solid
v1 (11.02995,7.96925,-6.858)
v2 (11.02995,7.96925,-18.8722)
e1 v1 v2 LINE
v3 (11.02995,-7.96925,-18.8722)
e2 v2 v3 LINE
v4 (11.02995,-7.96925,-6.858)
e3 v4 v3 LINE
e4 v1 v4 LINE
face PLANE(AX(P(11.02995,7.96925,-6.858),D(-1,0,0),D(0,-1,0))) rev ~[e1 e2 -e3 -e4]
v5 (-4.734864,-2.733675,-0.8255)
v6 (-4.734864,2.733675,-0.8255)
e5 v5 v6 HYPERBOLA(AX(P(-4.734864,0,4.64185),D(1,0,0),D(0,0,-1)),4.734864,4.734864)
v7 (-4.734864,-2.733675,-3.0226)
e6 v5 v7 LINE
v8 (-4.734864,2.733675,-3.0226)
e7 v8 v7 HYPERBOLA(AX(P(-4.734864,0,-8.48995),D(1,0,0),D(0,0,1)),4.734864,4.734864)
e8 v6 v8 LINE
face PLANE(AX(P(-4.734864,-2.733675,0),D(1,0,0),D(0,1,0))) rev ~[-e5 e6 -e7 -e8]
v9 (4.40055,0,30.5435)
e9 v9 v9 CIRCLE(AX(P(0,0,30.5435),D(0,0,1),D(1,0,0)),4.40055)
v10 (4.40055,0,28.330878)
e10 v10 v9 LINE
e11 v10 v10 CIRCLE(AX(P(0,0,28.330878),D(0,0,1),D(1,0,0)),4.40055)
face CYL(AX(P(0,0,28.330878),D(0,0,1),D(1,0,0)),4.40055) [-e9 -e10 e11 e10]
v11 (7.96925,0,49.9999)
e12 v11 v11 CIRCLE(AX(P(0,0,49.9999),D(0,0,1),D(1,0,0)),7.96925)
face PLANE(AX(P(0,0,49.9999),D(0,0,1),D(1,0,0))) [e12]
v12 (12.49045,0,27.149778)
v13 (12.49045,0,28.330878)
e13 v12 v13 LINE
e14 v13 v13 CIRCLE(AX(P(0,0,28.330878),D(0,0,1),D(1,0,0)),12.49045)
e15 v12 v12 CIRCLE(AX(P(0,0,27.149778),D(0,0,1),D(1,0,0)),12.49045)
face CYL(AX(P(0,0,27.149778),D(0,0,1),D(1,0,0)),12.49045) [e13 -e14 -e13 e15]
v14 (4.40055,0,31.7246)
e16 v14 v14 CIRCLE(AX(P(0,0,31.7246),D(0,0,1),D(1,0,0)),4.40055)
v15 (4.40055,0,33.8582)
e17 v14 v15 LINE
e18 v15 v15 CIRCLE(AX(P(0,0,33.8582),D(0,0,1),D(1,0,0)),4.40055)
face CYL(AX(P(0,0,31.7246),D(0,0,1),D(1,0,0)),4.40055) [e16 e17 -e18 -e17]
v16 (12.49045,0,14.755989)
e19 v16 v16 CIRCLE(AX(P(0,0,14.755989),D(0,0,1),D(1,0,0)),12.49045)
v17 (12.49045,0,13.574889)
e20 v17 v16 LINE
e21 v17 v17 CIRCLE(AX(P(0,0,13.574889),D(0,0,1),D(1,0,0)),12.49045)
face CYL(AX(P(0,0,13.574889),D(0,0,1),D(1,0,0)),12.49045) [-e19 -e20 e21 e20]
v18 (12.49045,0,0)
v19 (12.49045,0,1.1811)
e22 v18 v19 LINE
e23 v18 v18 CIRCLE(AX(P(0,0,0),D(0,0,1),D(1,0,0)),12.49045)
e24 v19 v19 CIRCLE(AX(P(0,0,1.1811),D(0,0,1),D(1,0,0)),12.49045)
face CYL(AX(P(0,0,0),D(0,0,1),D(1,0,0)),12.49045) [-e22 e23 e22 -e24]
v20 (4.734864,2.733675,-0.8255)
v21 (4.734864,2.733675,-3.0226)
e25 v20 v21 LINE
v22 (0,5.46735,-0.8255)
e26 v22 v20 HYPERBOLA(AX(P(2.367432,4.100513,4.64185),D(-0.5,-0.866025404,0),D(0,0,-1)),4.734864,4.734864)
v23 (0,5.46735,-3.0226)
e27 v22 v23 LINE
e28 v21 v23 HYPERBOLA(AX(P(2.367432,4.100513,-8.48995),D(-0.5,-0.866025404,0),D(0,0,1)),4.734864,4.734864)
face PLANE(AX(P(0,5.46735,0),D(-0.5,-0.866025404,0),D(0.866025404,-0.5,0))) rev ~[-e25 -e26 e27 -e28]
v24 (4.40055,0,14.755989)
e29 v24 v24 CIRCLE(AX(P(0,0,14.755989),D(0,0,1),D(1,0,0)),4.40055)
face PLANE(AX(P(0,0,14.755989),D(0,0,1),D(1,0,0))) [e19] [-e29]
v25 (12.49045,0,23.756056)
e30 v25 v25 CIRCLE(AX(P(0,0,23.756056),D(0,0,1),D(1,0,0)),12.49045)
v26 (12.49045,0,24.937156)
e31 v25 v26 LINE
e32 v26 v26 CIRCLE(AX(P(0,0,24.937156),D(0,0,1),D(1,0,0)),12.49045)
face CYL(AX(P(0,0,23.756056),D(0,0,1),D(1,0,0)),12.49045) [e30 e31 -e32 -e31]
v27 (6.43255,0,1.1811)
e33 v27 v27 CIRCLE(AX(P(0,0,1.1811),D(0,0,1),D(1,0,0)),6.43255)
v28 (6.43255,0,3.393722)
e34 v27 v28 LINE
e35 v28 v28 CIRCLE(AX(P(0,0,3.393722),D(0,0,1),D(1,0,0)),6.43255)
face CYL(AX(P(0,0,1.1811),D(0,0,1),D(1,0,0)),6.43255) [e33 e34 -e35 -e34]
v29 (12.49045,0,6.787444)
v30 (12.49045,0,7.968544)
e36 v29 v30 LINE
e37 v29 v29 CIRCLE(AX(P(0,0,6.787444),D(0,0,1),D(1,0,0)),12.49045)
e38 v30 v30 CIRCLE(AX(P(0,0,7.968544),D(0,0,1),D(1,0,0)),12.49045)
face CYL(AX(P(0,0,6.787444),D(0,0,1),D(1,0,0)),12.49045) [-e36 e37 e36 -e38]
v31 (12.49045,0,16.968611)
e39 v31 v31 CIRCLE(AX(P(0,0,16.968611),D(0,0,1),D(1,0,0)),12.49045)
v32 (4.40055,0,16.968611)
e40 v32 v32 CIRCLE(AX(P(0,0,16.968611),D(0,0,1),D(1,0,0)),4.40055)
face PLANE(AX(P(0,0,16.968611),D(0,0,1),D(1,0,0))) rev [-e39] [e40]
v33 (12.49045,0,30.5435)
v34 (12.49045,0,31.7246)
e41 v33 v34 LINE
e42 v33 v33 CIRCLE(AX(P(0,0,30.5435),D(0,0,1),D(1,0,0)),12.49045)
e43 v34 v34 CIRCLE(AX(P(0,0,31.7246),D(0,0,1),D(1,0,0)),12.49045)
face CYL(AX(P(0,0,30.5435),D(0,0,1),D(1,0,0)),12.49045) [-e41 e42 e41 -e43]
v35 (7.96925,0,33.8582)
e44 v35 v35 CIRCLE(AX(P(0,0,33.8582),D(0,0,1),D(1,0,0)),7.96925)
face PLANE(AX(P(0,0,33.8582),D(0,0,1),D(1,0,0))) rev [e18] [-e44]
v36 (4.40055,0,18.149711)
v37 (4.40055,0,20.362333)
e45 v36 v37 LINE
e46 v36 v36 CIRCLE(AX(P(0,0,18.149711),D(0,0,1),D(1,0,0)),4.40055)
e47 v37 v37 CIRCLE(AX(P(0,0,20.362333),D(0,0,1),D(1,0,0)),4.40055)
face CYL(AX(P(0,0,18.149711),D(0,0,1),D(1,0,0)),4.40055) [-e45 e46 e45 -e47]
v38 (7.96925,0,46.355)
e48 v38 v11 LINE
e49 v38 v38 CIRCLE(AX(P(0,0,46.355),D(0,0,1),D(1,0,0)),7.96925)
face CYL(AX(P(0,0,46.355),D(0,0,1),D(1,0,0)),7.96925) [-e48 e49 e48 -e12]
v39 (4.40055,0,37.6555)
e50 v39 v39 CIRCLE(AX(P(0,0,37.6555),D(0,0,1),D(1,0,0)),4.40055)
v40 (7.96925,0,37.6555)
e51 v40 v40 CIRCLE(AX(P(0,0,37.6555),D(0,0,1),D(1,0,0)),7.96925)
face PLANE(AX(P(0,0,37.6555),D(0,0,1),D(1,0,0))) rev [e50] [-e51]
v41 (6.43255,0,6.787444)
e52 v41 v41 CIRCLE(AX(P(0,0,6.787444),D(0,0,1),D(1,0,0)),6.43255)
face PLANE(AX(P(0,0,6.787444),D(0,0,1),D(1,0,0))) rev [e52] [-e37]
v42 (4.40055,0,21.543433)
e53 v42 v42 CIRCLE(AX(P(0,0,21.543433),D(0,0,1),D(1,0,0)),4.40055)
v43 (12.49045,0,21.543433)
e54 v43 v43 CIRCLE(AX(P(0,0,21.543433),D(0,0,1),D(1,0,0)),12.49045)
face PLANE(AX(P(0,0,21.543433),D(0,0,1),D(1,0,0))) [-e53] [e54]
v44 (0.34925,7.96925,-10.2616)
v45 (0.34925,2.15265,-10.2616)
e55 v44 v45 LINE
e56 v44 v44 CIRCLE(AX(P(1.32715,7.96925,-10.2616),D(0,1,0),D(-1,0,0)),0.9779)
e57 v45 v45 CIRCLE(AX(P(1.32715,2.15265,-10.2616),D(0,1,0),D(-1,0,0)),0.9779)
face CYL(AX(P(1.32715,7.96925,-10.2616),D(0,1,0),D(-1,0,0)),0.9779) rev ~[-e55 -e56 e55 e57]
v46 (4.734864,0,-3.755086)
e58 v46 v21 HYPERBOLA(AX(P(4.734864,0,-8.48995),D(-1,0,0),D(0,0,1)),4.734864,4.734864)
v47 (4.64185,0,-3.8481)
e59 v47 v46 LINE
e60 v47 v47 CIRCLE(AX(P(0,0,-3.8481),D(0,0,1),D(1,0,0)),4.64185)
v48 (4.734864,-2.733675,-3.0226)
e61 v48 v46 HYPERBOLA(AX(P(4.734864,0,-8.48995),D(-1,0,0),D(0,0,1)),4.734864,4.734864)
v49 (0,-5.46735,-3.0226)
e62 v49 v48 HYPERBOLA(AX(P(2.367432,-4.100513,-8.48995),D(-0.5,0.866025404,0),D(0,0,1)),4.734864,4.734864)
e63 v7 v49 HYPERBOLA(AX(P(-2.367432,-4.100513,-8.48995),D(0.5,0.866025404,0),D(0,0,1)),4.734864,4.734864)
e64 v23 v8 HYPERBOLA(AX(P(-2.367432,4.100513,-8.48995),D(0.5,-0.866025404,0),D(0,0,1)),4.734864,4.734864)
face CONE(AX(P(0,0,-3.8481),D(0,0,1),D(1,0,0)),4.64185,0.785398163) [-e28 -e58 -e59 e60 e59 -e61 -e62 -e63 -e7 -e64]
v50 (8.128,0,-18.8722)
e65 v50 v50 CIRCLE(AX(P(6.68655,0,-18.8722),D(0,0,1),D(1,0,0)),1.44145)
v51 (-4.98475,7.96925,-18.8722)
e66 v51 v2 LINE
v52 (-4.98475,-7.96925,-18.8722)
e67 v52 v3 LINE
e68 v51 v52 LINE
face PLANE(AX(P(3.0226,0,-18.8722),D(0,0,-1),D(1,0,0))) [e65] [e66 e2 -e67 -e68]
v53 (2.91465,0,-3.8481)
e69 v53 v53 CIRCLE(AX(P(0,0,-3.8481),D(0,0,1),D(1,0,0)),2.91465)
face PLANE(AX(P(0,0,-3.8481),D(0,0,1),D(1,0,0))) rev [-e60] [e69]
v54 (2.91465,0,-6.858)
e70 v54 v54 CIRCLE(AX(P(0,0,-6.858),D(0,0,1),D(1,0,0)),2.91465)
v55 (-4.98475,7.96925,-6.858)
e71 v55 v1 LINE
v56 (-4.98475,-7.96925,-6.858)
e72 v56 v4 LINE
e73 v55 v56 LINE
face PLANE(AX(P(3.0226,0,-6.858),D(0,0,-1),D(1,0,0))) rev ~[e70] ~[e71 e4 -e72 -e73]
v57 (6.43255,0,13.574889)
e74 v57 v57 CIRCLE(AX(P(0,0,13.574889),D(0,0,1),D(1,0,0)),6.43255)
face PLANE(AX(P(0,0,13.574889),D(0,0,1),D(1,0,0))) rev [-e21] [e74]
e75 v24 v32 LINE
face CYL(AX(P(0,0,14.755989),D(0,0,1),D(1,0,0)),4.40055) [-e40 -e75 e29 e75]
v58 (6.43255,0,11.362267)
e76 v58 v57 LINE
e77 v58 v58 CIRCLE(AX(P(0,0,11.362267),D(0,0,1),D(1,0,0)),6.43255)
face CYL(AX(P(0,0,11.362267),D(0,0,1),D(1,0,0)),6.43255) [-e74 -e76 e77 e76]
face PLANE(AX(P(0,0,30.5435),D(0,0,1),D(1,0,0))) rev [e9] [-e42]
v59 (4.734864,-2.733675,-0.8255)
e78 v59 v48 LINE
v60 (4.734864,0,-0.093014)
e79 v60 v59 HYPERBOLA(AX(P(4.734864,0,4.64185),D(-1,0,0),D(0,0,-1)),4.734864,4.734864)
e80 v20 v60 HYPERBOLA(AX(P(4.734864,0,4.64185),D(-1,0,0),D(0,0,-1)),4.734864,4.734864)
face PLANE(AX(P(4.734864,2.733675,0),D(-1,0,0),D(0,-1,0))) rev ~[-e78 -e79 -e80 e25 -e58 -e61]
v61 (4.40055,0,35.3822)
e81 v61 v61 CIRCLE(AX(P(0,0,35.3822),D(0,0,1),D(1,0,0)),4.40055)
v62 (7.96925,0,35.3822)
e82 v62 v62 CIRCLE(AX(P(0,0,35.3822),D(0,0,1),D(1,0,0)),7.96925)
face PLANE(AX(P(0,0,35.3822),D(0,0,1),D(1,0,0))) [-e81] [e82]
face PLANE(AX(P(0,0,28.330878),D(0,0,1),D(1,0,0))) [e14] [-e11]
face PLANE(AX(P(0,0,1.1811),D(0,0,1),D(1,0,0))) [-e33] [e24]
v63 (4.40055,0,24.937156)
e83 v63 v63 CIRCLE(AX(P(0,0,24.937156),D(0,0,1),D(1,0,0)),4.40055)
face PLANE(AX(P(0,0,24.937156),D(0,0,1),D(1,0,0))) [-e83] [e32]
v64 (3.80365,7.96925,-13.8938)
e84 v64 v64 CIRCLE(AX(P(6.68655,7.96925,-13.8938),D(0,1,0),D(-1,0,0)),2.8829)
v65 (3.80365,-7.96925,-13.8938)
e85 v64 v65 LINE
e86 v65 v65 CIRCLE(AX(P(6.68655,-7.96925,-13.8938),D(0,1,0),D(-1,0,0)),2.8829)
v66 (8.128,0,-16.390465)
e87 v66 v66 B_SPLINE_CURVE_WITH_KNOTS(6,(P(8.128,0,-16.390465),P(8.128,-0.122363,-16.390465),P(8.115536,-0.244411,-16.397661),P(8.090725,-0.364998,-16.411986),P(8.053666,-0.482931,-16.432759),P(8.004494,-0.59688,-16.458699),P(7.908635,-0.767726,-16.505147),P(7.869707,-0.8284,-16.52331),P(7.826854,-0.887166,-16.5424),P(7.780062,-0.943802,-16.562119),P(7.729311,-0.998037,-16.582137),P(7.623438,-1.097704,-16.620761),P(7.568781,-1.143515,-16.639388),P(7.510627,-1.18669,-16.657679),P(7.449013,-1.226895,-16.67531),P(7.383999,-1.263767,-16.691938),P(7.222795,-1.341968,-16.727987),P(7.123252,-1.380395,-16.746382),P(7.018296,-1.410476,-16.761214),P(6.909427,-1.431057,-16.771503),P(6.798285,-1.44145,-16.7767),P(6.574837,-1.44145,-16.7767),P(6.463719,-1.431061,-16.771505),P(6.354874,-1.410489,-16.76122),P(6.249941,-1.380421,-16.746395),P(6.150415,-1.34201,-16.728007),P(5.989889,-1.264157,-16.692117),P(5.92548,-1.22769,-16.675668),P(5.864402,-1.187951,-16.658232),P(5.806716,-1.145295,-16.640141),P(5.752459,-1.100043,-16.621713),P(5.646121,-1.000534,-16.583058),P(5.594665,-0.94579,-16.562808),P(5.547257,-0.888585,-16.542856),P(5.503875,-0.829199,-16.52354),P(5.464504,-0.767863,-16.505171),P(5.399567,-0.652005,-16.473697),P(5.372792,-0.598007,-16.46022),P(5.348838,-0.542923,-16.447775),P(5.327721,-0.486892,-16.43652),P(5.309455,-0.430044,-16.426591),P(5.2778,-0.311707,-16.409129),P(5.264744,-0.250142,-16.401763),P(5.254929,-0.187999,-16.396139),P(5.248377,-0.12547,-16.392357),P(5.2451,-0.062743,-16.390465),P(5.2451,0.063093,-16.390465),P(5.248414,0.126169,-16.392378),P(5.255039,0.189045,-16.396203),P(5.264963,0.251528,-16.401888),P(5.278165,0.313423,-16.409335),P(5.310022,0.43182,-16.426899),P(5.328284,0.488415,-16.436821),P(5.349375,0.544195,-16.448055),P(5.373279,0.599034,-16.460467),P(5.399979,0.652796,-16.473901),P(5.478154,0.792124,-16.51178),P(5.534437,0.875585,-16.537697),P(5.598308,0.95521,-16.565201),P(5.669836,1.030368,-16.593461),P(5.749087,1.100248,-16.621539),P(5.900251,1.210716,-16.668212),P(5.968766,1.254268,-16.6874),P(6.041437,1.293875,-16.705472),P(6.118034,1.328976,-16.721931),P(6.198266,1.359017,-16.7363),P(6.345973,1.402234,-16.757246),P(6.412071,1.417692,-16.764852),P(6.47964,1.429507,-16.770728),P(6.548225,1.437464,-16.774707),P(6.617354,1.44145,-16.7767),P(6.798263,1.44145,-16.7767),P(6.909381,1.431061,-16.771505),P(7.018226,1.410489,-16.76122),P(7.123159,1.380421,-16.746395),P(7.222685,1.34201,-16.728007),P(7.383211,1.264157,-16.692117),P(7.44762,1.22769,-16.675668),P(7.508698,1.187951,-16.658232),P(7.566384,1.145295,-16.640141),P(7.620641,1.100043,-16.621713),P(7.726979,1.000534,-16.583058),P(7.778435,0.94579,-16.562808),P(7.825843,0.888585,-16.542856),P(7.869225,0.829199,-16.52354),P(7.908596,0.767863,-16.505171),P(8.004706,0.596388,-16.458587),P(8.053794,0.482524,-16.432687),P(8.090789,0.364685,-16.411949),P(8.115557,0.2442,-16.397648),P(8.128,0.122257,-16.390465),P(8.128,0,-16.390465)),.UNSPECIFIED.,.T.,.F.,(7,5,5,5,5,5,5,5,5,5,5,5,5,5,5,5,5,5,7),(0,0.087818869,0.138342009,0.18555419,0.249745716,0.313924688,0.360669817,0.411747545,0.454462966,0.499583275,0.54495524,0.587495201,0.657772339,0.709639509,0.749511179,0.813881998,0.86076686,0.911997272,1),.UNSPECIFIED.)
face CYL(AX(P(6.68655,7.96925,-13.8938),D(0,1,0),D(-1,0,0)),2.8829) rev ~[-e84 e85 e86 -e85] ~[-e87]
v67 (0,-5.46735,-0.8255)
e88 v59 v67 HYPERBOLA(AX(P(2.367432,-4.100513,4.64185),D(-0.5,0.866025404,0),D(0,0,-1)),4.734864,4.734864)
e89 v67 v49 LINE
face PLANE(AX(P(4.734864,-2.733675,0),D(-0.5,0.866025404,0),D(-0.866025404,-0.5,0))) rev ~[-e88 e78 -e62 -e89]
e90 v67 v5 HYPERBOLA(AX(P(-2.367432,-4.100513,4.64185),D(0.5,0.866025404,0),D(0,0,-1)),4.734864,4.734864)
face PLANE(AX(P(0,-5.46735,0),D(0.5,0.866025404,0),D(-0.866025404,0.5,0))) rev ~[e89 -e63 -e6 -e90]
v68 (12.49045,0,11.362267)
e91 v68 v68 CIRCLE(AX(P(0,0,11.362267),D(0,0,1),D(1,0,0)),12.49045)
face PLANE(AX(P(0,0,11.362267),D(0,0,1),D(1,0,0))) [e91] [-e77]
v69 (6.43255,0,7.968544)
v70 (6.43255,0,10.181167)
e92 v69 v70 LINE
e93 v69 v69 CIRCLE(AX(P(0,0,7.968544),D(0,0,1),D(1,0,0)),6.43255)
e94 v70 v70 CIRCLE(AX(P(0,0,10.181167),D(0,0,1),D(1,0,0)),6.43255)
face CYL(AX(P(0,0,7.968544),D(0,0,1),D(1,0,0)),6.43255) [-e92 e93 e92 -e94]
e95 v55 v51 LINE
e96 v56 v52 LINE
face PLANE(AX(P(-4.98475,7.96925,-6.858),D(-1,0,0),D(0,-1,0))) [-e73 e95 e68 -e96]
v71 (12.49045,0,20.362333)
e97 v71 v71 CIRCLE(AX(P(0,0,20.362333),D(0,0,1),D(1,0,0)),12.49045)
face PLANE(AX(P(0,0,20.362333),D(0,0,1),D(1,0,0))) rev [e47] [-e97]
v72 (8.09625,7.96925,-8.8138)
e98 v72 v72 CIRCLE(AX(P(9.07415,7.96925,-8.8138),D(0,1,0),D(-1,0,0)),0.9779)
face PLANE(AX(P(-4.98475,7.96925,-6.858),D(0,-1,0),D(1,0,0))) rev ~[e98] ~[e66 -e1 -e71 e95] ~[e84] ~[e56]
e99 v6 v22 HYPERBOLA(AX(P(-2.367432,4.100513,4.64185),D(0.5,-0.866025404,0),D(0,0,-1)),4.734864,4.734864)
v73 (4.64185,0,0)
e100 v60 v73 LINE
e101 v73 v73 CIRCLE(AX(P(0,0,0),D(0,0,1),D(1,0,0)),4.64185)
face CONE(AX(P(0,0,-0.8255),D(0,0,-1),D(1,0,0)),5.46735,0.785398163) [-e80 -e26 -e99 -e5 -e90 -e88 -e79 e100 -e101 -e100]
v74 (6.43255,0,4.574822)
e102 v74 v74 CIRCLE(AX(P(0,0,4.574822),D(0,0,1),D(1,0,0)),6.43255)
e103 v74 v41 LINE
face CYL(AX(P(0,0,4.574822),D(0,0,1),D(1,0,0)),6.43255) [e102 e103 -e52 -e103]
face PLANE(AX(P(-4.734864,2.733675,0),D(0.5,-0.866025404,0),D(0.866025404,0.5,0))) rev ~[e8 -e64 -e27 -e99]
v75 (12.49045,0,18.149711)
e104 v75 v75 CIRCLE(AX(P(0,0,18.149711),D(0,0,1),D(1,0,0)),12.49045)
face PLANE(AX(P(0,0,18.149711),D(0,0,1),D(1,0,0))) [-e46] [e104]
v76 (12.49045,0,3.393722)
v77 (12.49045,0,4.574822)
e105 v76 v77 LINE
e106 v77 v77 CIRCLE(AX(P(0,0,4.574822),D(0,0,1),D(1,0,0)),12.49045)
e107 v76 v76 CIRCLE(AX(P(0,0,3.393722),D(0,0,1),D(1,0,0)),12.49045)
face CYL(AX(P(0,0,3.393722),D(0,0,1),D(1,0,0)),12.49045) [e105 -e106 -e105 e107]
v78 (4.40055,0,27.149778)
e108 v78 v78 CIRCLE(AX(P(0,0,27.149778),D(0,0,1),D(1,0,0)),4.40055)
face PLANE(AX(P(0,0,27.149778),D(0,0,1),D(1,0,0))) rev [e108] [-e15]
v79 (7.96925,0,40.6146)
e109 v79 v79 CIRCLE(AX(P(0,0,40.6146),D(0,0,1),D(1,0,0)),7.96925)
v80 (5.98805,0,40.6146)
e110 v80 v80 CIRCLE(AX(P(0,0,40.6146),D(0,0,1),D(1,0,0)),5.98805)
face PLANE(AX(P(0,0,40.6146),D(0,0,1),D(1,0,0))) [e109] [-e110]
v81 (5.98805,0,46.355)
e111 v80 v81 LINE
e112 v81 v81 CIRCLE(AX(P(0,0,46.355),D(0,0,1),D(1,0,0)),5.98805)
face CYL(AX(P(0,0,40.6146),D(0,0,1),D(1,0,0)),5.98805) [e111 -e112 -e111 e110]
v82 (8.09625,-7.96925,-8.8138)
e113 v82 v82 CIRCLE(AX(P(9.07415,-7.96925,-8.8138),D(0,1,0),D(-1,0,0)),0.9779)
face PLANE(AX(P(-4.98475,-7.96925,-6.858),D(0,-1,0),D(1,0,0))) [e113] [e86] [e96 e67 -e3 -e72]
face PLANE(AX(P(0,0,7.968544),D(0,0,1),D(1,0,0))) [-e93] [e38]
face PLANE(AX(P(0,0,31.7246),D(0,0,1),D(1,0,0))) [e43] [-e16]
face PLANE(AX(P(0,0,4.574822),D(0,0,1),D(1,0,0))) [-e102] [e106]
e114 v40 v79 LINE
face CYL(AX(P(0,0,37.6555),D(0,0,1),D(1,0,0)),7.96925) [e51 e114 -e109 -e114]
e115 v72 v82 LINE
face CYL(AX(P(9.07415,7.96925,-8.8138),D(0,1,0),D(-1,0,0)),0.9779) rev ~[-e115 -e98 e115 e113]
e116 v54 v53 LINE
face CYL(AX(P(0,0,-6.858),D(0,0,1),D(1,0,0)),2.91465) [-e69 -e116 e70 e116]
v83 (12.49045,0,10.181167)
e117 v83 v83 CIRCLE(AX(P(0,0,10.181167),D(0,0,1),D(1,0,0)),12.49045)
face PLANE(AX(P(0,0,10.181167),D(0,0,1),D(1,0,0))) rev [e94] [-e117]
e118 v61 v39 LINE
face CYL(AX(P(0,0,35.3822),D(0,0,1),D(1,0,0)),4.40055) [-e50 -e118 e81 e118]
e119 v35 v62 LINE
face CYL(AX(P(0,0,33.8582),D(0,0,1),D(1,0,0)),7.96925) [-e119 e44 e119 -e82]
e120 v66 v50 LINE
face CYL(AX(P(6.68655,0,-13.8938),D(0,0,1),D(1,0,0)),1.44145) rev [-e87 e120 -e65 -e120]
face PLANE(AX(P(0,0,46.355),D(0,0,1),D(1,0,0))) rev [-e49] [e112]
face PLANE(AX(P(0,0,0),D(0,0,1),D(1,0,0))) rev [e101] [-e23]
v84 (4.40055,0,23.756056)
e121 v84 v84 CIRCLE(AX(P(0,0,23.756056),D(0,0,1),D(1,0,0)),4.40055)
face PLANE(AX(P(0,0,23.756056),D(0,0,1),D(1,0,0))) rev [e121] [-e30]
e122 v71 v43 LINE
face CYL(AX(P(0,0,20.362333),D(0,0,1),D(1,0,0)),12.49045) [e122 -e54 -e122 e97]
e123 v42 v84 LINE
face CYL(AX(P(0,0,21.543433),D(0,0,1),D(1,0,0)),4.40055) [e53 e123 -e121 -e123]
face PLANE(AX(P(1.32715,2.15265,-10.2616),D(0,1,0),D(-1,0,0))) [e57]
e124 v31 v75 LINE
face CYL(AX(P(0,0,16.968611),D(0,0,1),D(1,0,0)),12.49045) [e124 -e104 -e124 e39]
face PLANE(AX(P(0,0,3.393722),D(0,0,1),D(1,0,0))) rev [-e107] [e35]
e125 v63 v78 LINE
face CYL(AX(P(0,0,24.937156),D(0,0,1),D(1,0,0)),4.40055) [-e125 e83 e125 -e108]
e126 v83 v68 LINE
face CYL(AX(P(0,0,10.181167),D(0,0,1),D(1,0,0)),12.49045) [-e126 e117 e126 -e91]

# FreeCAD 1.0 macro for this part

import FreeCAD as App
import Part
import Sketcher
Q = App.Units.Quantity

doc = App.newDocument("Part")
params = doc.addObject("Spreadsheet::Sheet", "Params")
for row, (alias, value) in enumerate([
    ("sketch1_height", "0.06 in"),
    ("sketch1_width", "0.068 in"),
    ("sketch1_width2", "0.309 in"),
    ("sketch1_width3", "0.078 in"),
    ("sketch1_height2", "0.084 in"),
    ("revolution_angle", "360 deg"),
    ("pocket1_length", "1 in"),
    ("pad1_length", "0.473 in"),
    ("sketch4_diameter", "0.227 in"),
    ("sketch4_diameter2", "0.077 in"),
    ("pocket2_length", "1 in"),
    ("sketch5_diameter", "0.077 in"),
    ("pocket3_length", "0.229 in"),
    ("pocket4_length", "1 in"),
], start=1):
    params.set(f"A{row}", alias)
    params.set(f"B{row}", "=" + value)
    params.setAlias(f"B{row}", alias)

body = doc.addObject("PartDesign::Body", "Body")

# Sketch on XZ plane
sketch1 = body.newObject("Sketcher::SketchObject", "Sketch")
sketch1.AttachmentSupport = (doc.getObject("XZ_Plane"), [""])
sketch1.MapMode = "FlatFace"
sketch1.addGeometry(Part.LineSegment(App.Vector(0, 50, 0), App.Vector(0, -6.9, 0)), False)
sketch1.addGeometry(Part.LineSegment(App.Vector(0, -6.9, 0), App.Vector(2.9, -6.9, 0)), False)
sketch1.addGeometry(Part.LineSegment(App.Vector(2.9, -6.9, 0), App.Vector(2.9, -3.8, 0)), False)
sketch1.addGeometry(Part.LineSegment(App.Vector(2.9, -3.8, 0), App.Vector(4.6, -3.8, 0)), False)
sketch1.addGeometry(Part.LineSegment(App.Vector(4.6, -3.8, 0), App.Vector(5.5, -3, 0)), False)
sketch1.addGeometry(Part.LineSegment(App.Vector(5.5, -3, 0), App.Vector(5.5, -0.8, 0)), False)
sketch1.addGeometry(Part.LineSegment(App.Vector(5.5, -0.8, 0), App.Vector(4.6, 0, 0)), False)
sketch1.addGeometry(Part.LineSegment(App.Vector(4.6, 0, 0), App.Vector(12.5, 0, 0)), False)
sketch1.addGeometry(Part.LineSegment(App.Vector(12.5, 0, 0), App.Vector(12.5, 1.2, 0)), False)
sketch1.addGeometry(Part.LineSegment(App.Vector(12.5, 1.2, 0), App.Vector(6.4, 1.2, 0)), False)
sketch1.addGeometry(Part.LineSegment(App.Vector(6.4, 1.2, 0), App.Vector(6.4, 3.4, 0)), False)
sketch1.addGeometry(Part.LineSegment(App.Vector(6.4, 3.4, 0), App.Vector(12.5, 3.4, 0)), False)
sketch1.addGeometry(Part.LineSegment(App.Vector(12.5, 3.4, 0), App.Vector(12.5, 4.6, 0)), False)
sketch1.addGeometry(Part.LineSegment(App.Vector(12.5, 4.6, 0), App.Vector(6.4, 4.6, 0)), False)
sketch1.addGeometry(Part.LineSegment(App.Vector(6.4, 4.6, 0), App.Vector(6.4, 6.8, 0)), False)
sketch1.addGeometry(Part.LineSegment(App.Vector(6.4, 6.8, 0), App.Vector(12.5, 6.8, 0)), False)
sketch1.addGeometry(Part.LineSegment(App.Vector(12.5, 6.8, 0), App.Vector(12.5, 8, 0)), False)
sketch1.addGeometry(Part.LineSegment(App.Vector(12.5, 8, 0), App.Vector(6.4, 8, 0)), False)
sketch1.addGeometry(Part.LineSegment(App.Vector(6.4, 8, 0), App.Vector(6.4, 10.2, 0)), False)
sketch1.addGeometry(Part.LineSegment(App.Vector(6.4, 10.2, 0), App.Vector(12.5, 10.2, 0)), False)
sketch1.addGeometry(Part.LineSegment(App.Vector(12.5, 10.2, 0), App.Vector(12.5, 11.4, 0)), False)
sketch1.addGeometry(Part.LineSegment(App.Vector(12.5, 11.4, 0), App.Vector(6.4, 11.4, 0)), False)
sketch1.addGeometry(Part.LineSegment(App.Vector(6.4, 11.4, 0), App.Vector(6.4, 13.6, 0)), False)
sketch1.addGeometry(Part.LineSegment(App.Vector(6.4, 13.6, 0), App.Vector(12.5, 13.6, 0)), False)
sketch1.addGeometry(Part.LineSegment(App.Vector(12.5, 13.6, 0), App.Vector(12.5, 14.8, 0)), False)
sketch1.addGeometry(Part.LineSegment(App.Vector(12.5, 14.8, 0), App.Vector(4.4, 14.8, 0)), False)
sketch1.addGeometry(Part.LineSegment(App.Vector(4.4, 14.8, 0), App.Vector(4.4, 17, 0)), False)
sketch1.addGeometry(Part.LineSegment(App.Vector(4.4, 17, 0), App.Vector(12.5, 17, 0)), False)
sketch1.addGeometry(Part.LineSegment(App.Vector(12.5, 17, 0), App.Vector(12.5, 18.1, 0)), False)
sketch1.addGeometry(Part.LineSegment(App.Vector(12.5, 18.1, 0), App.Vector(4.4, 18.1, 0)), False)
sketch1.addGeometry(Part.LineSegment(App.Vector(4.4, 18.1, 0), App.Vector(4.4, 20.4, 0)), False)
sketch1.addGeometry(Part.LineSegment(App.Vector(4.4, 20.4, 0), App.Vector(12.5, 20.4, 0)), False)
sketch1.addGeometry(Part.LineSegment(App.Vector(12.5, 20.4, 0), App.Vector(12.5, 21.5, 0)), False)
sketch1.addGeometry(Part.LineSegment(App.Vector(12.5, 21.5, 0), App.Vector(4.4, 21.5, 0)), False)
sketch1.addGeometry(Part.LineSegment(App.Vector(4.4, 21.5, 0), App.Vector(4.4, 23.8, 0)), False)
sketch1.addGeometry(Part.LineSegment(App.Vector(4.4, 23.8, 0), App.Vector(12.5, 23.8, 0)), False)
sketch1.addGeometry(Part.LineSegment(App.Vector(12.5, 23.8, 0), App.Vector(12.5, 24.9, 0)), False)
sketch1.addGeometry(Part.LineSegment(App.Vector(12.5, 24.9, 0), App.Vector(4.4, 24.9, 0)), False)
sketch1.addGeometry(Part.LineSegment(App.Vector(4.4, 24.9, 0), App.Vector(4.4, 27.1, 0)), False)
sketch1.addGeometry(Part.LineSegment(App.Vector(4.4, 27.1, 0), App.Vector(12.5, 27.1, 0)), False)
sketch1.addGeometry(Part.LineSegment(App.Vector(12.5, 27.1, 0), App.Vector(12.5, 28.3, 0)), False)
sketch1.addGeometry(Part.LineSegment(App.Vector(12.5, 28.3, 0), App.Vector(4.4, 28.3, 0)), False)
sketch1.addGeometry(Part.LineSegment(App.Vector(4.4, 28.3, 0), App.Vector(4.4, 30.5, 0)), False)
sketch1.addGeometry(Part.LineSegment(App.Vector(4.4, 30.5, 0), App.Vector(12.5, 30.5, 0)), False)
sketch1.addGeometry(Part.LineSegment(App.Vector(12.5, 30.5, 0), App.Vector(12.5, 31.7, 0)), False)
sketch1.addGeometry(Part.LineSegment(App.Vector(12.5, 31.7, 0), App.Vector(4.4, 31.7, 0)), False)
sketch1.addGeometry(Part.LineSegment(App.Vector(4.4, 31.7, 0), App.Vector(4.4, 33.9, 0)), False)
sketch1.addGeometry(Part.LineSegment(App.Vector(4.4, 33.9, 0), App.Vector(8, 33.9, 0)), False)
sketch1.addGeometry(Part.LineSegment(App.Vector(8, 33.9, 0), App.Vector(8, 35.4, 0)), False)
sketch1.addGeometry(Part.LineSegment(App.Vector(8, 35.4, 0), App.Vector(4.4, 35.4, 0)), False)
sketch1.addGeometry(Part.LineSegment(App.Vector(4.4, 35.4, 0), App.Vector(4.4, 37.7, 0)), False)
sketch1.addGeometry(Part.LineSegment(App.Vector(4.4, 37.7, 0), App.Vector(8, 37.7, 0)), False)
sketch1.addGeometry(Part.LineSegment(App.Vector(8, 37.7, 0), App.Vector(8, 40.6, 0)), False)
sketch1.addGeometry(Part.LineSegment(App.Vector(8, 40.6, 0), App.Vector(6, 40.6, 0)), False)
sketch1.addGeometry(Part.LineSegment(App.Vector(6, 40.6, 0), App.Vector(6, 46.4, 0)), False)
sketch1.addGeometry(Part.LineSegment(App.Vector(6, 46.4, 0), App.Vector(8, 46.4, 0)), False)
sketch1.addGeometry(Part.LineSegment(App.Vector(8, 46.4, 0), App.Vector(8, 50, 0)), False)
sketch1.addGeometry(Part.LineSegment(App.Vector(8, 50, 0), App.Vector(0, 50, 0)), False)
sketch1.addConstraint(Sketcher.Constraint("Coincident", 0, 2, 1, 1))
sketch1.addConstraint(Sketcher.Constraint("Coincident", 1, 2, 2, 1))
sketch1.addConstraint(Sketcher.Constraint("Coincident", 2, 2, 3, 1))
sketch1.addConstraint(Sketcher.Constraint("Coincident", 3, 2, 4, 1))
sketch1.addConstraint(Sketcher.Constraint("Coincident", 4, 2, 5, 1))
sketch1.addConstraint(Sketcher.Constraint("Coincident", 5, 2, 6, 1))
sketch1.addConstraint(Sketcher.Constraint("Coincident", 6, 2, 7, 1))
sketch1.addConstraint(Sketcher.Constraint("Coincident", 7, 2, 8, 1))
sketch1.addConstraint(Sketcher.Constraint("Coincident", 8, 2, 9, 1))
sketch1.addConstraint(Sketcher.Constraint("Coincident", 9, 2, 10, 1))
sketch1.addConstraint(Sketcher.Constraint("Coincident", 10, 2, 11, 1))
sketch1.addConstraint(Sketcher.Constraint("Coincident", 11, 2, 12, 1))
sketch1.addConstraint(Sketcher.Constraint("Coincident", 12, 2, 13, 1))
sketch1.addConstraint(Sketcher.Constraint("Coincident", 13, 2, 14, 1))
sketch1.addConstraint(Sketcher.Constraint("Coincident", 14, 2, 15, 1))
sketch1.addConstraint(Sketcher.Constraint("Coincident", 15, 2, 16, 1))
sketch1.addConstraint(Sketcher.Constraint("Coincident", 16, 2, 17, 1))
sketch1.addConstraint(Sketcher.Constraint("Coincident", 17, 2, 18, 1))
sketch1.addConstraint(Sketcher.Constraint("Coincident", 18, 2, 19, 1))
sketch1.addConstraint(Sketcher.Constraint("Coincident", 19, 2, 20, 1))
sketch1.addConstraint(Sketcher.Constraint("Coincident", 20, 2, 21, 1))
sketch1.addConstraint(Sketcher.Constraint("Coincident", 21, 2, 22, 1))
sketch1.addConstraint(Sketcher.Constraint("Coincident", 22, 2, 23, 1))
sketch1.addConstraint(Sketcher.Constraint("Coincident", 23, 2, 24, 1))
sketch1.addConstraint(Sketcher.Constraint("Coincident", 24, 2, 25, 1))
sketch1.addConstraint(Sketcher.Constraint("Coincident", 25, 2, 26, 1))
sketch1.addConstraint(Sketcher.Constraint("Coincident", 26, 2, 27, 1))
sketch1.addConstraint(Sketcher.Constraint("Coincident", 27, 2, 28, 1))
sketch1.addConstraint(Sketcher.Constraint("Coincident", 28, 2, 29, 1))
sketch1.addConstraint(Sketcher.Constraint("Coincident", 29, 2, 30, 1))
sketch1.addConstraint(Sketcher.Constraint("Coincident", 30, 2, 31, 1))
sketch1.addConstraint(Sketcher.Constraint("Coincident", 31, 2, 32, 1))
sketch1.addConstraint(Sketcher.Constraint("Coincident", 32, 2, 33, 1))
sketch1.addConstraint(Sketcher.Constraint("Coincident", 33, 2, 34, 1))
sketch1.addConstraint(Sketcher.Constraint("Coincident", 34, 2, 35, 1))
sketch1.addConstraint(Sketcher.Constraint("Coincident", 35, 2, 36, 1))
sketch1.addConstraint(Sketcher.Constraint("Coincident", 36, 2, 37, 1))
sketch1.addConstraint(Sketcher.Constraint("Coincident", 37, 2, 38, 1))
sketch1.addConstraint(Sketcher.Constraint("Coincident", 38, 2, 39, 1))
sketch1.addConstraint(Sketcher.Constraint("Coincident", 39, 2, 40, 1))
sketch1.addConstraint(Sketcher.Constraint("Coincident", 40, 2, 41, 1))
sketch1.addConstraint(Sketcher.Constraint("Coincident", 41, 2, 42, 1))
sketch1.addConstraint(Sketcher.Constraint("Coincident", 42, 2, 43, 1))
sketch1.addConstraint(Sketcher.Constraint("Coincident", 43, 2, 44, 1))
sketch1.addConstraint(Sketcher.Constraint("Coincident", 44, 2, 45, 1))
sketch1.addConstraint(Sketcher.Constraint("Coincident", 45, 2, 46, 1))
sketch1.addConstraint(Sketcher.Constraint("Coincident", 46, 2, 47, 1))
sketch1.addConstraint(Sketcher.Constraint("Coincident", 47, 2, 48, 1))
sketch1.addConstraint(Sketcher.Constraint("Coincident", 48, 2, 49, 1))
sketch1.addConstraint(Sketcher.Constraint("Coincident", 49, 2, 50, 1))
sketch1.addConstraint(Sketcher.Constraint("Coincident", 50, 2, 51, 1))
sketch1.addConstraint(Sketcher.Constraint("Coincident", 51, 2, 52, 1))
sketch1.addConstraint(Sketcher.Constraint("Coincident", 52, 2, 53, 1))
sketch1.addConstraint(Sketcher.Constraint("Coincident", 53, 2, 54, 1))
sketch1.addConstraint(Sketcher.Constraint("Coincident", 54, 2, 55, 1))
sketch1.addConstraint(Sketcher.Constraint("Coincident", 55, 2, 56, 1))
sketch1.addConstraint(Sketcher.Constraint("Coincident", 56, 2, 57, 1))
sketch1.addConstraint(Sketcher.Constraint("Coincident", 57, 2, 0, 1))
sketch1.addConstraint(Sketcher.Constraint("Vertical", 0))
sketch1.addConstraint(Sketcher.Constraint("Horizontal", 1))
sketch1.addConstraint(Sketcher.Constraint("Vertical", 2))
sketch1.addConstraint(Sketcher.Constraint("Horizontal", 3))
sketch1.addConstraint(Sketcher.Constraint("Vertical", 5))
sketch1.addConstraint(Sketcher.Constraint("Horizontal", 7))
sketch1.addConstraint(Sketcher.Constraint("Vertical", 8))
sketch1.addConstraint(Sketcher.Constraint("Horizontal", 9))
sketch1.addConstraint(Sketcher.Constraint("Vertical", 10))
sketch1.addConstraint(Sketcher.Constraint("Horizontal", 11))
sketch1.addConstraint(Sketcher.Constraint("Vertical", 12))
sketch1.addConstraint(Sketcher.Constraint("Horizontal", 13))
sketch1.addConstraint(Sketcher.Constraint("Vertical", 14))
sketch1.addConstraint(Sketcher.Constraint("Horizontal", 15))
sketch1.addConstraint(Sketcher.Constraint("Vertical", 16))
sketch1.addConstraint(Sketcher.Constraint("Horizontal", 17))
sketch1.addConstraint(Sketcher.Constraint("Vertical", 18))
sketch1.addConstraint(Sketcher.Constraint("Horizontal", 19))
sketch1.addConstraint(Sketcher.Constraint("Vertical", 20))
sketch1.addConstraint(Sketcher.Constraint("Horizontal", 21))
sketch1.addConstraint(Sketcher.Constraint("Vertical", 22))
sketch1.addConstraint(Sketcher.Constraint("Horizontal", 23))
sketch1.addConstraint(Sketcher.Constraint("Vertical", 24))
sketch1.addConstraint(Sketcher.Constraint("Horizontal", 25))
sketch1.addConstraint(Sketcher.Constraint("Vertical", 26))
sketch1.addConstraint(Sketcher.Constraint("Horizontal", 27))
sketch1.addConstraint(Sketcher.Constraint("Vertical", 28))
sketch1.addConstraint(Sketcher.Constraint("Horizontal", 29))
sketch1.addConstraint(Sketcher.Constraint("Vertical", 30))
sketch1.addConstraint(Sketcher.Constraint("Horizontal", 31))
sketch1.addConstraint(Sketcher.Constraint("Vertical", 32))
sketch1.addConstraint(Sketcher.Constraint("Horizontal", 33))
sketch1.addConstraint(Sketcher.Constraint("Vertical", 34))
sketch1.addConstraint(Sketcher.Constraint("Horizontal", 35))
sketch1.addConstraint(Sketcher.Constraint("Vertical", 36))
sketch1.addConstraint(Sketcher.Constraint("Horizontal", 37))
sketch1.addConstraint(Sketcher.Constraint("Vertical", 38))
sketch1.addConstraint(Sketcher.Constraint("Horizontal", 39))
sketch1.addConstraint(Sketcher.Constraint("Vertical", 40))
sketch1.addConstraint(Sketcher.Constraint("Horizontal", 41))
sketch1.addConstraint(Sketcher.Constraint("Vertical", 42))
sketch1.addConstraint(Sketcher.Constraint("Horizontal", 43))
sketch1.addConstraint(Sketcher.Constraint("Vertical", 44))
sketch1.addConstraint(Sketcher.Constraint("Horizontal", 45))
sketch1.addConstraint(Sketcher.Constraint("Vertical", 46))
sketch1.addConstraint(Sketcher.Constraint("Horizontal", 47))
sketch1.addConstraint(Sketcher.Constraint("Vertical", 48))
sketch1.addConstraint(Sketcher.Constraint("Horizontal", 49))
sketch1.addConstraint(Sketcher.Constraint("Vertical", 50))
sketch1.addConstraint(Sketcher.Constraint("Horizontal", 51))
sketch1.addConstraint(Sketcher.Constraint("Vertical", 52))
sketch1.addConstraint(Sketcher.Constraint("Horizontal", 53))
sketch1.addConstraint(Sketcher.Constraint("Vertical", 54))
sketch1.addConstraint(Sketcher.Constraint("Horizontal", 55))
sketch1.addConstraint(Sketcher.Constraint("Vertical", 56))
sketch1.addConstraint(Sketcher.Constraint("Horizontal", 57))
sketch1.addConstraint(Sketcher.Constraint("PointOnObject", 0, 2, -2))
sketch1.addConstraint(Sketcher.Constraint("PointOnObject", 6, 2, -1))
sketch1.addConstraint(Sketcher.Constraint("Perpendicular", 4, 6))
sketch1.addConstraint(Sketcher.Constraint("Vertical", 3, 2, 6, 2))
sketch1.addConstraint(Sketcher.Constraint("Vertical", 8, 2, 11, 2))
sketch1.addConstraint(Sketcher.Constraint("Vertical", 10, 2, 13, 2))
sketch1.addConstraint(Sketcher.Constraint("Vertical", 12, 2, 15, 2))
sketch1.addConstraint(Sketcher.Constraint("Vertical", 14, 2, 17, 2))
sketch1.addConstraint(Sketcher.Constraint("Vertical", 16, 2, 19, 2))
sketch1.addConstraint(Sketcher.Constraint("Vertical", 18, 2, 21, 2))
sketch1.addConstraint(Sketcher.Constraint("Vertical", 20, 2, 23, 2))
sketch1.addConstraint(Sketcher.Constraint("Vertical", 24, 2, 27, 2))
sketch1.addConstraint(Sketcher.Constraint("Vertical", 26, 2, 29, 2))
sketch1.addConstraint(Sketcher.Constraint("Vertical", 28, 2, 31, 2))
sketch1.addConstraint(Sketcher.Constraint("Vertical", 30, 2, 33, 2))
sketch1.addConstraint(Sketcher.Constraint("Vertical", 32, 2, 35, 2))
sketch1.addConstraint(Sketcher.Constraint("Vertical", 34, 2, 37, 2))
sketch1.addConstraint(Sketcher.Constraint("Vertical", 36, 2, 39, 2))
sketch1.addConstraint(Sketcher.Constraint("Vertical", 38, 2, 41, 2))
sketch1.addConstraint(Sketcher.Constraint("Vertical", 40, 2, 43, 2))
sketch1.addConstraint(Sketcher.Constraint("Vertical", 42, 2, 45, 2))
sketch1.addConstraint(Sketcher.Constraint("Vertical", 46, 2, 49, 2))
sketch1.addConstraint(Sketcher.Constraint("Vertical", 48, 2, 51, 2))
sketch1.addConstraint(Sketcher.Constraint("Vertical", 52, 2, 55, 2))
sketch1.addConstraint(Sketcher.Constraint("Equal", 8, 12))
sketch1.addConstraint(Sketcher.Constraint("Equal", 10, 14))
sketch1.addConstraint(Sketcher.Constraint("Equal", 12, 16))
sketch1.addConstraint(Sketcher.Constraint("Equal", 14, 18))
sketch1.addConstraint(Sketcher.Constraint("Equal", 16, 20))
sketch1.addConstraint(Sketcher.Constraint("Equal", 18, 22))
sketch1.addConstraint(Sketcher.Constraint("Equal", 20, 24))
sketch1.addConstraint(Sketcher.Constraint("Equal", 22, 26))
sketch1.addConstraint(Sketcher.Constraint("Equal", 24, 28))
sketch1.addConstraint(Sketcher.Constraint("Equal", 26, 30))
sketch1.addConstraint(Sketcher.Constraint("Equal", 28, 32))
sketch1.addConstraint(Sketcher.Constraint("Equal", 30, 34))
sketch1.addConstraint(Sketcher.Constraint("Equal", 32, 36))
sketch1.addConstraint(Sketcher.Constraint("Equal", 34, 38))
sketch1.addConstraint(Sketcher.Constraint("Equal", 36, 40))
sketch1.addConstraint(Sketcher.Constraint("Equal", 38, 42))
sketch1.addConstraint(Sketcher.Constraint("Equal", 40, 44))
sketch1.addConstraint(Sketcher.Constraint("Equal", 4, 6))
sketch1.addConstraint(Sketcher.Constraint("DistanceY", 48, 1, 48, 2, Q("0.06 in")))
sketch1.addConstraint(Sketcher.Constraint("DistanceX", 3, 1, 3, 2, Q("0.068 in")))
sketch1.addConstraint(Sketcher.Constraint("DistanceX", 7, 1, 7, 2, Q("0.309 in")))
sketch1.addConstraint(Sketcher.Constraint("DistanceX", 53, 2, 53, 1, Q("0.078 in")))
sketch1.addConstraint(Sketcher.Constraint("DistanceY", 46, 1, 46, 2, Q("0.084 in")))
sketch1.addConstraint(Sketcher.Constraint("DistanceY", 54, 1, 54, 2, Q("0.226 in")))
sketch1.addConstraint(Sketcher.Constraint("DistanceY", 0, 2, -1, 1, Q("0.27 in")))
sketch1.addConstraint(Sketcher.Constraint("DistanceX", 25, 2, 22, 2, Q("0.08 in")))
sketch1.addConstraint(Sketcher.Constraint("DistanceX", 9, 2, 9, 1, Q("0.2385 in")))
sketch1.addConstraint(Sketcher.Constraint("DistanceX", 47, 1, 47, 2, Q("0.1405 in")))
sketch1.addConstraint(Sketcher.Constraint("DistanceY", 0, 2, 0, 1, Q("2.2385 in")))
sketch1.addConstraint(Sketcher.Constraint("DistanceY", 2, 1, 2, 2, Q("0.1185 in")))
sketch1.addConstraint(Sketcher.Constraint("DistanceY", 5, 1, 5, 2, Q("0.0865 in")))
sketch1.addConstraint(Sketcher.Constraint("DistanceY", 8, 1, 8, 2, Q("0.0465 in")))
sketch1.addConstraint(Sketcher.Constraint("DistanceY", 50, 1, 50, 2, Q("0.0895 in")))
sketch1.addConstraint(Sketcher.Constraint("DistanceY", 52, 1, 52, 2, Q("0.1165 in")))
sketch1.addConstraint(Sketcher.Constraint("DistanceY", 56, 1, 56, 2, Q("0.1435 in")))
sketch1.addConstraint(Sketcher.Constraint("DistanceX", 1, 1, 1, 2, 2.91465))
sketch1.setExpression("Constraints[156]", "Params.sketch1_height")
sketch1.setExpression("Constraints[157]", "Params.sketch1_width")
sketch1.setExpression("Constraints[158]", "Params.sketch1_width2")
sketch1.setExpression("Constraints[159]", "Params.sketch1_width3")
sketch1.setExpression("Constraints[160]", "Params.sketch1_height2")
revolution = body.newObject("PartDesign::Revolution", "Revolution")
revolution.Profile = sketch1
revolution.ReferenceAxis = (sketch1, ["V_Axis"])
revolution.setExpression("Angle", "Params.revolution_angle")

# Sketch on XY plane
sketch2 = body.newObject("Sketcher::SketchObject", "Sketch001")
sketch2.AttachmentSupport = (doc.getObject("XY_Plane"), [""])
sketch2.MapMode = "FlatFace"
sketch2.addGeometry(Part.Circle(App.Vector(0, 0, 0), App.Vector(0, 0, 1), 12), False)
sketch2.addGeometry(Part.LineSegment(App.Vector(5, 3, 0), App.Vector(5, -3, 0)), False)
sketch2.addGeometry(Part.LineSegment(App.Vector(5, -3, 0), App.Vector(0, -5, 0)), False)
sketch2.addGeometry(Part.LineSegment(App.Vector(0, -5, 0), App.Vector(-5, -3, 0)), False)
sketch2.addGeometry(Part.LineSegment(App.Vector(-5, -3, 0), App.Vector(-5, 3, 0)), False)
sketch2.addGeometry(Part.LineSegment(App.Vector(-5, 3, 0), App.Vector(0, 5, 0)), False)
sketch2.addGeometry(Part.LineSegment(App.Vector(0, 5, 0), App.Vector(5, 3, 0)), False)
sketch2.addConstraint(Sketcher.Constraint("Coincident", 1, 2, 2, 1))
sketch2.addConstraint(Sketcher.Constraint("Coincident", 2, 2, 3, 1))
sketch2.addConstraint(Sketcher.Constraint("Coincident", 3, 2, 4, 1))
sketch2.addConstraint(Sketcher.Constraint("Coincident", 4, 2, 5, 1))
sketch2.addConstraint(Sketcher.Constraint("Coincident", 5, 2, 6, 1))
sketch2.addConstraint(Sketcher.Constraint("Coincident", 6, 2, 1, 1))
sketch2.addConstraint(Sketcher.Constraint("Vertical", 1))
sketch2.addConstraint(Sketcher.Constraint("Vertical", 4))
sketch2.addConstraint(Sketcher.Constraint("Coincident", 0, 3, -1, 1))
sketch2.addConstraint(Sketcher.Constraint("Symmetric", 1, 2, 4, 2, -1, 1))
sketch2.addConstraint(Sketcher.Constraint("Symmetric", 2, 2, 5, 2, -1, 1))
sketch2.addConstraint(Sketcher.Constraint("PointOnObject", 2, 2, -2))
sketch2.addConstraint(Sketcher.Constraint("Parallel", 3, 6))
sketch2.addConstraint(Sketcher.Constraint("Horizontal", 1, 2, 3, 2))
sketch2.addConstraint(Sketcher.Constraint("Angle", 2, Q("-150 deg")))
sketch2.addConstraint(Sketcher.Constraint("Diameter", 0, Q("0.9835 in")))
sketch2.addConstraint(Sketcher.Constraint("DistanceY", 2, 2, 5, 2, Q("0.4305 in")))
sketch2.addConstraint(Sketcher.Constraint("DistanceY", 1, 2, 1, 1, 5.46735))
pocket1 = body.newObject("PartDesign::Pocket", "Pocket")
pocket1.Profile = sketch2
pocket1.setExpression("Length", "Params.pocket1_length")

# Sketch on XY plane
sketch3 = body.newObject("Sketcher::SketchObject", "Sketch002")
sketch3.AttachmentSupport = (doc.getObject("XY_Plane"), [""])
sketch3.MapMode = "FlatFace"
sketch3.AttachmentOffset = App.Placement(App.Vector(0, 0, -0.27 * 25.4), App.Rotation())
sketch3.addGeometry(Part.LineSegment(App.Vector(-5, -8, 0), App.Vector(-5, 8, 0)), False)
sketch3.addGeometry(Part.LineSegment(App.Vector(-5, 8, 0), App.Vector(11, 8, 0)), False)
sketch3.addGeometry(Part.LineSegment(App.Vector(11, 8, 0), App.Vector(11, -8, 0)), False)
sketch3.addGeometry(Part.LineSegment(App.Vector(11, -8, 0), App.Vector(-5, -8, 0)), False)
sketch3.addConstraint(Sketcher.Constraint("Coincident", 0, 2, 1, 1))
sketch3.addConstraint(Sketcher.Constraint("Coincident", 1, 2, 2, 1))
sketch3.addConstraint(Sketcher.Constraint("Coincident", 2, 2, 3, 1))
sketch3.addConstraint(Sketcher.Constraint("Coincident", 3, 2, 0, 1))
sketch3.addConstraint(Sketcher.Constraint("Vertical", 0))
sketch3.addConstraint(Sketcher.Constraint("Horizontal", 1))
sketch3.addConstraint(Sketcher.Constraint("Vertical", 2))
sketch3.addConstraint(Sketcher.Constraint("Horizontal", 3))
sketch3.addConstraint(Sketcher.Constraint("DistanceX", 1, 1, 1, 2, Q("0.6305 in")))
sketch3.addConstraint(Sketcher.Constraint("DistanceY", 0, 1, 0, 2, Q("0.6275 in")))
sketch3.addConstraint(Sketcher.Constraint("DistanceX", 0, 2, -1, 1, 4.98475))
sketch3.addConstraint(Sketcher.Constraint("DistanceY", -1, 1, 0, 2, 7.96925))
pad1 = body.newObject("PartDesign::Pad", "Pad")
pad1.Profile = sketch3
pad1.setExpression("Length", "Params.pad1_length")
pad1.Reversed = True

# Sketch on XZ plane
sketch4 = body.newObject("Sketcher::SketchObject", "Sketch003")
sketch4.AttachmentSupport = (doc.getObject("XZ_Plane"), [""])
sketch4.MapMode = "FlatFace"
sketch4.AttachmentOffset = App.Placement(App.Vector(0, 0, -7.96925), App.Rotation())
sketch4.addGeometry(Part.Circle(App.Vector(6.7, -13.9, 0), App.Vector(0, 0, 1), 2.9), False)
sketch4.addGeometry(Part.Circle(App.Vector(9.1, -8.8, 0), App.Vector(0, 0, 1), 1), False)
sketch4.addConstraint(Sketcher.Constraint("Diameter", 0, Q("0.227 in")))
sketch4.addConstraint(Sketcher.Constraint("Diameter", 1, Q("0.077 in")))
sketch4.addConstraint(Sketcher.Constraint("DistanceY", 0, 3, 1, 3, Q("0.2 in")))
sketch4.addConstraint(Sketcher.Constraint("DistanceY", 0, 3, -1, 1, Q("0.547 in")))
sketch4.addConstraint(Sketcher.Constraint("DistanceX", 0, 3, 1, 3, Q("0.094 in")))
sketch4.addConstraint(Sketcher.Constraint("DistanceX", -1, 1, 0, 3, 6.68655))
sketch4.setExpression("Constraints[0]", "Params.sketch4_diameter")
sketch4.setExpression("Constraints[1]", "Params.sketch4_diameter2")
pocket2 = body.newObject("PartDesign::Pocket", "Pocket001")
pocket2.Profile = sketch4
pocket2.setExpression("Length", "Params.pocket2_length")
pocket2.Reversed = True

# Sketch on XZ plane
sketch5 = body.newObject("Sketcher::SketchObject", "Sketch004")
sketch5.AttachmentSupport = (doc.getObject("XZ_Plane"), [""])
sketch5.MapMode = "FlatFace"
sketch5.AttachmentOffset = App.Placement(App.Vector(0, 0, -7.96925), App.Rotation())
sketch5.addGeometry(Part.Circle(App.Vector(1.3, -10.3, 0), App.Vector(0, 0, 1), 1), False)
sketch5.addConstraint(Sketcher.Constraint("Diameter", 0, Q("0.077 in")))
sketch5.addConstraint(Sketcher.Constraint("DistanceY", 0, 3, -1, 1, Q("0.404 in")))
sketch5.addConstraint(Sketcher.Constraint("DistanceX", -1, 1, 0, 3, 1.32715))
sketch5.setExpression("Constraints[0]", "Params.sketch5_diameter")
pocket3 = body.newObject("PartDesign::Pocket", "Pocket002")
pocket3.Profile = sketch5
pocket3.setExpression("Length", "Params.pocket3_length")
pocket3.Reversed = True

# Sketch on XY plane
sketch6 = body.newObject("Sketcher::SketchObject", "Sketch005")
sketch6.AttachmentSupport = (doc.getObject("XY_Plane"), [""])
sketch6.MapMode = "FlatFace"
sketch6.AttachmentOffset = App.Placement(App.Vector(0, 0, -0.547 * 25.4), App.Rotation())
sketch6.addGeometry(Part.Circle(App.Vector(6.7, 0, 0), App.Vector(0, 0, 1), 1.4), False)
sketch6.addConstraint(Sketcher.Constraint("PointOnObject", 0, 3, -1))
sketch6.addConstraint(Sketcher.Constraint("Diameter", 0, Q("0.1135 in")))
sketch6.addConstraint(Sketcher.Constraint("DistanceX", -1, 1, 0, 3, 6.68655))
pocket4 = body.newObject("PartDesign::Pocket", "Pocket003")
pocket4.Profile = sketch6
pocket4.setExpression("Length", "Params.pocket4_length")

doc.recompute()
